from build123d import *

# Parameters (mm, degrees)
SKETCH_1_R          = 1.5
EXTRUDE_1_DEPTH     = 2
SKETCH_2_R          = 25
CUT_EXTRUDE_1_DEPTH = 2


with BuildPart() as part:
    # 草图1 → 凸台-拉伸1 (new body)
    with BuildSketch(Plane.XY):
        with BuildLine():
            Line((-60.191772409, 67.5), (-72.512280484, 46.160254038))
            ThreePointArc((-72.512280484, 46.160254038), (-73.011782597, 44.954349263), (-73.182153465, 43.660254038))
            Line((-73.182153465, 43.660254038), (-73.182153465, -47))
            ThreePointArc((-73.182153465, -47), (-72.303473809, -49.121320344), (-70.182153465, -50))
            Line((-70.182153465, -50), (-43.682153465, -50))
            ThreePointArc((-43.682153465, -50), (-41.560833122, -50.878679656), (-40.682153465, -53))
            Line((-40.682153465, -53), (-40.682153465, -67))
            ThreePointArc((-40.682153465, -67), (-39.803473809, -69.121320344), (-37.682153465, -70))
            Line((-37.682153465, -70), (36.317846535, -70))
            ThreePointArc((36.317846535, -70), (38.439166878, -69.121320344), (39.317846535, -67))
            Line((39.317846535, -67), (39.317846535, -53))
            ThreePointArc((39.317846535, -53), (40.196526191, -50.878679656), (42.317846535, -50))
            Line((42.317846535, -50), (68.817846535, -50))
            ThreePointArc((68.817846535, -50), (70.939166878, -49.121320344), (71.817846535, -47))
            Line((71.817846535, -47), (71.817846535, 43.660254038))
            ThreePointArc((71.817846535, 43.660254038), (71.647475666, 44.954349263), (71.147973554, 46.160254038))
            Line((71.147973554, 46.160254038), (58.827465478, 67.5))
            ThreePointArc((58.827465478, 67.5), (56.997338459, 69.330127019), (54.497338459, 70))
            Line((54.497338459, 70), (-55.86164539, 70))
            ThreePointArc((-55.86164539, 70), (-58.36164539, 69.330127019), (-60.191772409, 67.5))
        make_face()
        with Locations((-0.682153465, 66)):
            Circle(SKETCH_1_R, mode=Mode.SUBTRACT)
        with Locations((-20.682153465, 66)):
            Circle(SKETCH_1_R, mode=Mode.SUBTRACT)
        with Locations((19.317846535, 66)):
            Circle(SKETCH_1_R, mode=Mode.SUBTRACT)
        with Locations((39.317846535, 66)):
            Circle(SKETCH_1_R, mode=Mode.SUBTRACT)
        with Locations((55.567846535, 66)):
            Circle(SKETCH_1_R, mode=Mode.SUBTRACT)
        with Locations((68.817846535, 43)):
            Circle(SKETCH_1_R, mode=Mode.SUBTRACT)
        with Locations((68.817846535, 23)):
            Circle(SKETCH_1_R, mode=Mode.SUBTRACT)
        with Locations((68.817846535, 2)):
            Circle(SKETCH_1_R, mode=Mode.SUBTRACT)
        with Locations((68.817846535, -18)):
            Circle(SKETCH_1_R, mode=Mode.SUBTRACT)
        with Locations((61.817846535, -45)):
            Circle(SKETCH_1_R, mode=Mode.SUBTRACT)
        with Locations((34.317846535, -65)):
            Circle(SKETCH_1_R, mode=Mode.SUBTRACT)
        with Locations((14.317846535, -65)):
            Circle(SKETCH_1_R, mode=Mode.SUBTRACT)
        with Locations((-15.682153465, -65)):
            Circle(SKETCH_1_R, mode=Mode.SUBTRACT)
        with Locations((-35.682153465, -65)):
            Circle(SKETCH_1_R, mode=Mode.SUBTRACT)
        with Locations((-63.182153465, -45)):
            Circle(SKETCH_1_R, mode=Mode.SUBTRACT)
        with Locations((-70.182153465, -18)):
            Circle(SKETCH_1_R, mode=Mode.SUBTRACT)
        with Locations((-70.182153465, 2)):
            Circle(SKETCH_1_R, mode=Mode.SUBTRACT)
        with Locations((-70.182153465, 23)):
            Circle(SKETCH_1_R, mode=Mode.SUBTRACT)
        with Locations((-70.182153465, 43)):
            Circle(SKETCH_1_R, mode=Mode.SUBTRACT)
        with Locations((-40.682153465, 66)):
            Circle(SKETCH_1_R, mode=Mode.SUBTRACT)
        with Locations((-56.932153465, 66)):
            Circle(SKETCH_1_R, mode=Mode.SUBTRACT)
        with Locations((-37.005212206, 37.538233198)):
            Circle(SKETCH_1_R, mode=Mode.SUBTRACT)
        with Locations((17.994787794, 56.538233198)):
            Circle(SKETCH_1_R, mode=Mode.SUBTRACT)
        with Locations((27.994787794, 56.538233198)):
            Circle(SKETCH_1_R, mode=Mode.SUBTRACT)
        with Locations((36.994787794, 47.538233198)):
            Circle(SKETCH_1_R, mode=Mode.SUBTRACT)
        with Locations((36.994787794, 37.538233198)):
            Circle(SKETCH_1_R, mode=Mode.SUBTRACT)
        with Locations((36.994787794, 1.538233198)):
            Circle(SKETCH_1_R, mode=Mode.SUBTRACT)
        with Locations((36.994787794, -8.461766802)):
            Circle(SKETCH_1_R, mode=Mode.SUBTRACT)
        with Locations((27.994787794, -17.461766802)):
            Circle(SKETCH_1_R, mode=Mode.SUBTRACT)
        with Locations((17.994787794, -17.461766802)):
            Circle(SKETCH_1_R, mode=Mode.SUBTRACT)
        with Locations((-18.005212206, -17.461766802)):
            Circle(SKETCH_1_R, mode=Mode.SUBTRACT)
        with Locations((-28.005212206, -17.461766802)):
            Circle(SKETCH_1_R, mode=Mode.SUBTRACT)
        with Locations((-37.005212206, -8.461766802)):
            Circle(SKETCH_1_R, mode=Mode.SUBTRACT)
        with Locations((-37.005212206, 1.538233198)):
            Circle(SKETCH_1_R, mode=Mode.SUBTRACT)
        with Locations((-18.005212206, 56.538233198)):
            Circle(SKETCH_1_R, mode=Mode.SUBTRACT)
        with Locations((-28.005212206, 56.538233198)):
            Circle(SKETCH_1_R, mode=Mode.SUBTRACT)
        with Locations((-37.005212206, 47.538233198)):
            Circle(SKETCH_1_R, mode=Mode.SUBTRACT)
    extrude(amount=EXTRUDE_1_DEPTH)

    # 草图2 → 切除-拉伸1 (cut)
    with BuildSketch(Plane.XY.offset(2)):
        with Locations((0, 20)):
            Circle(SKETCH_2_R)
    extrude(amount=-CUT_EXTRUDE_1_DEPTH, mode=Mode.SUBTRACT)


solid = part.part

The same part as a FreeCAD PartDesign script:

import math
import FreeCAD as App
import Part
import Sketcher
Q = App.Units.Quantity

doc = App.newDocument("Part")
params = doc.addObject("Spreadsheet::Sheet", "Params")
for row, (alias, value) in enumerate([
    ("sketch1_diameter", "3 mm"),
    ("sketch1_radius", "5 mm"),
    ("sketch1_radius2", "3 mm"),
    ("sketch1_width", "74 mm"),
    ("sketch1_height", "14 mm"),
    ("pad1_length", "2 mm"),
    ("sketch2_diameter", "50 mm"),
    ("pocket1_length", "2 mm"),
], start=1):
    params.set(f"A{row}", alias)
    params.set(f"B{row}", "=" + value)
    params.setAlias(f"B{row}", alias)

body = doc.addObject("PartDesign::Body", "Body")

sketch1 = body.newObject("Sketcher::SketchObject", "Sketch")
sketch1.AttachmentSupport = (doc.getObject("XY_Plane"), [""])
sketch1.MapMode = "FlatFace"
sketch1.addGeometry(Part.LineSegment(App.Vector(-60.191772, 67.5, 0), App.Vector(-72.51228, 46.160254, 0)), False)
sketch1.addGeometry(Part.ArcOfCircle(Part.Circle(App.Vector(-68.182153, 43.660254, 0), App.Vector(0, 0, 1), 5), math.radians(150), math.radians(180)), False)
sketch1.addGeometry(Part.LineSegment(App.Vector(-73.182153, 43.660254, 0), App.Vector(-73.182153, -47, 0)), False)
sketch1.addGeometry(Part.ArcOfCircle(Part.Circle(App.Vector(-70.182153, -47, 0), App.Vector(0, 0, 1), 3), math.radians(180), math.radians(270)), False)
sketch1.addGeometry(Part.LineSegment(App.Vector(-70.182153, -50, 0), App.Vector(-43.682153, -50, 0)), False)
sketch1.addGeometry(Part.ArcOfCircle(Part.Circle(App.Vector(-43.682153, -53, 0), App.Vector(0, 0, 1), 3), math.radians(0), math.radians(90)), False)
sketch1.addGeometry(Part.LineSegment(App.Vector(-40.682153, -53, 0), App.Vector(-40.682153, -67, 0)), False)
sketch1.addGeometry(Part.ArcOfCircle(Part.Circle(App.Vector(-37.682153, -67, 0), App.Vector(0, 0, 1), 3), math.radians(180), math.radians(270)), False)
sketch1.addGeometry(Part.LineSegment(App.Vector(-37.682153, -70, 0), App.Vector(36.317847, -70, 0)), False)
sketch1.addGeometry(Part.ArcOfCircle(Part.Circle(App.Vector(36.317847, -67, 0), App.Vector(0, 0, 1), 3), math.radians(-90), math.radians(0)), False)
sketch1.addGeometry(Part.LineSegment(App.Vector(39.317847, -67, 0), App.Vector(39.317847, -53, 0)), False)
sketch1.addGeometry(Part.ArcOfCircle(Part.Circle(App.Vector(42.317847, -53, 0), App.Vector(0, 0, 1), 3), math.radians(90), math.radians(180)), False)
sketch1.addGeometry(Part.LineSegment(App.Vector(42.317847, -50, 0), App.Vector(68.817847, -50, 0)), False)
sketch1.addGeometry(Part.ArcOfCircle(Part.Circle(App.Vector(68.817847, -47, 0), App.Vector(0, 0, 1), 3), math.radians(-90), math.radians(0)), False)
sketch1.addGeometry(Part.LineSegment(App.Vector(71.817847, -47, 0), App.Vector(71.817847, 43.660254, 0)), False)
sketch1.addGeometry(Part.ArcOfCircle(Part.Circle(App.Vector(66.817847, 43.660254, 0), App.Vector(0, 0, 1), 5), math.radians(0), math.radians(30)), False)
sketch1.addGeometry(Part.LineSegment(App.Vector(71.147974, 46.160254, 0), App.Vector(58.827465, 67.5, 0)), False)
sketch1.addGeometry(Part.ArcOfCircle(Part.Circle(App.Vector(54.497338, 65, 0), App.Vector(0, 0, 1), 5), math.radians(30), math.radians(90)), False)
sketch1.addGeometry(Part.LineSegment(App.Vector(54.497338, 70, 0), App.Vector(-55.861645, 70, 0)), False)
sketch1.addGeometry(Part.ArcOfCircle(Part.Circle(App.Vector(-55.861645, 65, 0), App.Vector(0, 0, 1), 5), math.radians(90), math.radians(150)), False)
sketch1.addGeometry(Part.Circle(App.Vector(-63.182153, -45, 0), App.Vector(0, 0, 1), 1.5), False)
sketch1.addGeometry(Part.Circle(App.Vector(-35.682153, -65, 0), App.Vector(0, 0, 1), 1.5), False)
sketch1.addGeometry(Part.Circle(App.Vector(-15.682153, -65, 0), App.Vector(0, 0, 1), 1.5), False)
sketch1.addGeometry(Part.Circle(App.Vector(-70.182153, -18, 0), App.Vector(0, 0, 1), 1.5), False)
sketch1.addGeometry(Part.Circle(App.Vector(-37.005212, -8.461767, 0), App.Vector(0, 0, 1), 1.5), False)
sketch1.addGeometry(Part.Circle(App.Vector(-28.005212, -17.461767, 0), App.Vector(0, 0, 1), 1.5), False)
sketch1.addGeometry(Part.Circle(App.Vector(-18.005212, -17.461767, 0), App.Vector(0, 0, 1), 1.5), False)
sketch1.addGeometry(Part.Circle(App.Vector(14.317847, -65, 0), App.Vector(0, 0, 1), 1.5), False)
sketch1.addGeometry(Part.Circle(App.Vector(34.317847, -65, 0), App.Vector(0, 0, 1), 1.5), False)
sketch1.addGeometry(Part.Circle(App.Vector(61.817847, -45, 0), App.Vector(0, 0, 1), 1.5), False)
sketch1.addGeometry(Part.Circle(App.Vector(17.994788, -17.461767, 0), App.Vector(0, 0, 1), 1.5), False)
sketch1.addGeometry(Part.Circle(App.Vector(27.994788, -17.461767, 0), App.Vector(0, 0, 1), 1.5), False)
sketch1.addGeometry(Part.Circle(App.Vector(68.817847, -18, 0), App.Vector(0, 0, 1), 1.5), False)
sketch1.addGeometry(Part.Circle(App.Vector(36.994788, -8.461767, 0), App.Vector(0, 0, 1), 1.5), False)
sketch1.addGeometry(Part.Circle(App.Vector(-70.182153, 2, 0), App.Vector(0, 0, 1), 1.5), False)
sketch1.addGeometry(Part.Circle(App.Vector(-37.005212, 1.538233, 0), App.Vector(0, 0, 1), 1.5), False)
sketch1.addGeometry(Part.Circle(App.Vector(-70.182153, 23, 0), App.Vector(0, 0, 1), 1.5), False)
sketch1.addGeometry(Part.Circle(App.Vector(-70.182153, 43, 0), App.Vector(0, 0, 1), 1.5), False)
sketch1.addGeometry(Part.Circle(App.Vector(-37.005212, 37.538233, 0), App.Vector(0, 0, 1), 1.5), False)
sketch1.addGeometry(Part.Circle(App.Vector(-37.005212, 47.538233, 0), App.Vector(0, 0, 1), 1.5), False)
sketch1.addGeometry(Part.Circle(App.Vector(-56.932153, 66, 0), App.Vector(0, 0, 1), 1.5), False)
sketch1.addGeometry(Part.Circle(App.Vector(-40.682153, 66, 0), App.Vector(0, 0, 1), 1.5), False)
sketch1.addGeometry(Part.Circle(App.Vector(-28.005212, 56.538233, 0), App.Vector(0, 0, 1), 1.5), False)
sketch1.addGeometry(Part.Circle(App.Vector(-20.682153, 66, 0), App.Vector(0, 0, 1), 1.5), False)
sketch1.addGeometry(Part.Circle(App.Vector(-18.005212, 56.538233, 0), App.Vector(0, 0, 1), 1.5), False)
sketch1.addGeometry(Part.Circle(App.Vector(-0.682153, 66, 0), App.Vector(0, 0, 1), 1.5), False)
sketch1.addGeometry(Part.Circle(App.Vector(36.994788, 1.538233, 0), App.Vector(0, 0, 1), 1.5), False)
sketch1.addGeometry(Part.Circle(App.Vector(68.817847, 2, 0), App.Vector(0, 0, 1), 1.5), False)
sketch1.addGeometry(Part.Circle(App.Vector(68.817847, 23, 0), App.Vector(0, 0, 1), 1.5), False)
sketch1.addGeometry(Part.Circle(App.Vector(17.994788, 56.538233, 0), App.Vector(0, 0, 1), 1.5), False)
sketch1.addGeometry(Part.Circle(App.Vector(27.994788, 56.538233, 0), App.Vector(0, 0, 1), 1.5), False)
sketch1.addGeometry(Part.Circle(App.Vector(19.317847, 66, 0), App.Vector(0, 0, 1), 1.5), False)
sketch1.addGeometry(Part.Circle(App.Vector(36.994788, 37.538233, 0), App.Vector(0, 0, 1), 1.5), False)
sketch1.addGeometry(Part.Circle(App.Vector(36.994788, 47.538233, 0), App.Vector(0, 0, 1), 1.5), False)
sketch1.addGeometry(Part.Circle(App.Vector(68.817847, 43, 0), App.Vector(0, 0, 1), 1.5), False)
sketch1.addGeometry(Part.Circle(App.Vector(39.317847, 66, 0), App.Vector(0, 0, 1), 1.5), False)
sketch1.addGeometry(Part.Circle(App.Vector(55.567847, 66, 0), App.Vector(0, 0, 1), 1.5), False)
sketch1.addConstraint(Sketcher.Constraint("Tangent", 0, 2, 1, 1))
sketch1.addConstraint(Sketcher.Constraint("Tangent", 1, 2, 2, 1))
sketch1.addConstraint(Sketcher.Constraint("Tangent", 2, 2, 3, 1))
sketch1.addConstraint(Sketcher.Constraint("Tangent", 3, 2, 4, 1))
sketch1.addConstraint(Sketcher.Constraint("Tangent", 4, 2, 5, 2))
sketch1.addConstraint(Sketcher.Constraint("Tangent", 5, 1, 6, 1))
sketch1.addConstraint(Sketcher.Constraint("Tangent", 6, 2, 7, 1))
sketch1.addConstraint(Sketcher.Constraint("Tangent", 7, 2, 8, 1))
sketch1.addConstraint(Sketcher.Constraint("Tangent", 8, 2, 9, 1))
sketch1.addConstraint(Sketcher.Constraint("Tangent", 9, 2, 10, 1))
sketch1.addConstraint(Sketcher.Constraint("Tangent", 10, 2, 11, 2))
sketch1.addConstraint(Sketcher.Constraint("Tangent", 11, 1, 12, 1))
sketch1.addConstraint(Sketcher.Constraint("Tangent", 12, 2, 13, 1))
sketch1.addConstraint(Sketcher.Constraint("Tangent", 13, 2, 14, 1))
sketch1.addConstraint(Sketcher.Constraint("Tangent", 14, 2, 15, 1))
sketch1.addConstraint(Sketcher.Constraint("Tangent", 15, 2, 16, 1))
sketch1.addConstraint(Sketcher.Constraint("Tangent", 16, 2, 17, 1))
sketch1.addConstraint(Sketcher.Constraint("Tangent", 17, 2, 18, 1))
sketch1.addConstraint(Sketcher.Constraint("Tangent", 18, 2, 19, 1))
sketch1.addConstraint(Sketcher.Constraint("Tangent", 19, 2, 0, 1))
sketch1.addConstraint(Sketcher.Constraint("Vertical", 2))
sketch1.addConstraint(Sketcher.Constraint("Horizontal", 4))
sketch1.addConstraint(Sketcher.Constraint("Vertical", 6))
sketch1.addConstraint(Sketcher.Constraint("Horizontal", 8))
sketch1.addConstraint(Sketcher.Constraint("Vertical", 10))
sketch1.addConstraint(Sketcher.Constraint("Horizontal", 12))
sketch1.addConstraint(Sketcher.Constraint("Vertical", 14))
sketch1.addConstraint(Sketcher.Constraint("Horizontal", 18))
sketch1.addConstraint(Sketcher.Constraint("Equal", 3, 5))
sketch1.addConstraint(Sketcher.Constraint("Equal", 5, 7))
sketch1.addConstraint(Sketcher.Constraint("Equal", 7, 9))
sketch1.addConstraint(Sketcher.Constraint("Equal", 9, 11))
sketch1.addConstraint(Sketcher.Constraint("Equal", 11, 13))
sketch1.addConstraint(Sketcher.Constraint("Equal", 1, 15))
sketch1.addConstraint(Sketcher.Constraint("Equal", 15, 17))
sketch1.addConstraint(Sketcher.Constraint("Equal", 17, 19))
sketch1.addConstraint(Sketcher.Constraint("Equal", 20, 21))
sketch1.addConstraint(Sketcher.Constraint("Equal", 21, 22))
sketch1.addConstraint(Sketcher.Constraint("Equal", 22, 23))
sketch1.addConstraint(Sketcher.Constraint("Equal", 23, 24))
sketch1.addConstraint(Sketcher.Constraint("Equal", 24, 25))
sketch1.addConstraint(Sketcher.Constraint("Equal", 25, 26))
sketch1.addConstraint(Sketcher.Constraint("Equal", 26, 27))
sketch1.addConstraint(Sketcher.Constraint("Equal", 27, 28))
sketch1.addConstraint(Sketcher.Constraint("Equal", 28, 29))
sketch1.addConstraint(Sketcher.Constraint("Equal", 29, 30))
sketch1.addConstraint(Sketcher.Constraint("Equal", 30, 31))
sketch1.addConstraint(Sketcher.Constraint("Equal", 31, 32))
sketch1.addConstraint(Sketcher.Constraint("Equal", 32, 33))
sketch1.addConstraint(Sketcher.Constraint("Equal", 33, 34))
sketch1.addConstraint(Sketcher.Constraint("Equal", 34, 35))
sketch1.addConstraint(Sketcher.Constraint("Equal", 35, 36))
sketch1.addConstraint(Sketcher.Constraint("Equal", 36, 37))
sketch1.addConstraint(Sketcher.Constraint("Equal", 37, 38))
sketch1.addConstraint(Sketcher.Constraint("Equal", 38, 39))
sketch1.addConstraint(Sketcher.Constraint("Equal", 39, 40))
sketch1.addConstraint(Sketcher.Constraint("Equal", 40, 41))
sketch1.addConstraint(Sketcher.Constraint("Equal", 41, 42))
sketch1.addConstraint(Sketcher.Constraint("Equal", 42, 43))
sketch1.addConstraint(Sketcher.Constraint("Equal", 43, 44))
sketch1.addConstraint(Sketcher.Constraint("Equal", 44, 45))
sketch1.addConstraint(Sketcher.Constraint("Equal", 45, 46))
sketch1.addConstraint(Sketcher.Constraint("Equal", 46, 47))
sketch1.addConstraint(Sketcher.Constraint("Equal", 47, 48))
sketch1.addConstraint(Sketcher.Constraint("Equal", 48, 49))
sketch1.addConstraint(Sketcher.Constraint("Equal", 49, 50))
sketch1.addConstraint(Sketcher.Constraint("Equal", 50, 51))
sketch1.addConstraint(Sketcher.Constraint("Equal", 51, 52))
sketch1.addConstraint(Sketcher.Constraint("Equal", 52, 53))
sketch1.addConstraint(Sketcher.Constraint("Equal", 53, 54))
sketch1.addConstraint(Sketcher.Constraint("Equal", 54, 55))
sketch1.addConstraint(Sketcher.Constraint("Equal", 55, 56))
sketch1.addConstraint(Sketcher.Constraint("Horizontal", 5, 3, 11, 3))
sketch1.addConstraint(Sketcher.Constraint("Horizontal", 1, 3, 15, 3))
sketch1.addConstraint(Sketcher.Constraint("Horizontal", 21, 3, 22, 3))
sketch1.addConstraint(Sketcher.Constraint("Horizontal", 25, 3, 26, 3))
sketch1.addConstraint(Sketcher.Constraint("Horizontal", 22, 3, 27, 3))
sketch1.addConstraint(Sketcher.Constraint("Horizontal", 27, 3, 28, 3))
sketch1.addConstraint(Sketcher.Constraint("Horizontal", 20, 3, 29, 3))
sketch1.addConstraint(Sketcher.Constraint("Horizontal", 26, 3, 30, 3))
sketch1.addConstraint(Sketcher.Constraint("Horizontal", 30, 3, 31, 3))
sketch1.addConstraint(Sketcher.Constraint("Horizontal", 23, 3, 32, 3))
sketch1.addConstraint(Sketcher.Constraint("Horizontal", 24, 3, 33, 3))
sketch1.addConstraint(Sketcher.Constraint("Horizontal", 40, 3, 41, 3))
sketch1.addConstraint(Sketcher.Constraint("Horizontal", 41, 3, 43, 3))
sketch1.addConstraint(Sketcher.Constraint("Horizontal", 42, 3, 44, 3))
sketch1.addConstraint(Sketcher.Constraint("Horizontal", 43, 3, 45, 3))
sketch1.addConstraint(Sketcher.Constraint("Horizontal", 35, 3, 46, 3))
sketch1.addConstraint(Sketcher.Constraint("Horizontal", 34, 3, 47, 3))
sketch1.addConstraint(Sketcher.Constraint("Horizontal", 36, 3, 48, 3))
sketch1.addConstraint(Sketcher.Constraint("Horizontal", 44, 3, 49, 3))
sketch1.addConstraint(Sketcher.Constraint("Horizontal", 49, 3, 50, 3))
sketch1.addConstraint(Sketcher.Constraint("Horizontal", 45, 3, 51, 3))
sketch1.addConstraint(Sketcher.Constraint("Horizontal", 38, 3, 52, 3))
sketch1.addConstraint(Sketcher.Constraint("Horizontal", 39, 3, 53, 3))
sketch1.addConstraint(Sketcher.Constraint("Horizontal", 37, 3, 54, 3))
sketch1.addConstraint(Sketcher.Constraint("Horizontal", 51, 3, 55, 3))
sketch1.addConstraint(Sketcher.Constraint("Horizontal", 55, 3, 56, 3))
sketch1.addConstraint(Sketcher.Constraint("Horizontal", 0, 2, 15, 2))
sketch1.addConstraint(Sketcher.Constraint("Vertical", 3, 3, 23, 3))
sketch1.addConstraint(Sketcher.Constraint("Vertical", 13, 3, 32, 3))
sketch1.addConstraint(Sketcher.Constraint("Vertical", 23, 3, 34, 3))
sketch1.addConstraint(Sketcher.Constraint("Vertical", 24, 3, 35, 3))
sketch1.addConstraint(Sketcher.Constraint("Vertical", 34, 3, 36, 3))
sketch1.addConstraint(Sketcher.Constraint("Vertical", 36, 3, 37, 3))
sketch1.addConstraint(Sketcher.Constraint("Vertical", 35, 3, 38, 3))
sketch1.addConstraint(Sketcher.Constraint("Vertical", 38, 3, 39, 3))
sketch1.addConstraint(Sketcher.Constraint("Vertical", 25, 3, 42, 3))
sketch1.addConstraint(Sketcher.Constraint("Vertical", 26, 3, 44, 3))
sketch1.addConstraint(Sketcher.Constraint("Vertical", 33, 3, 46, 3))
sketch1.addConstraint(Sketcher.Constraint("Vertical", 32, 3, 47, 3))
sketch1.addConstraint(Sketcher.Constraint("Vertical", 47, 3, 48, 3))
sketch1.addConstraint(Sketcher.Constraint("Vertical", 30, 3, 49, 3))
sketch1.addConstraint(Sketcher.Constraint("Vertical", 31, 3, 50, 3))
sketch1.addConstraint(Sketcher.Constraint("Vertical", 46, 3, 52, 3))
sketch1.addConstraint(Sketcher.Constraint("Vertical", 52, 3, 53, 3))
sketch1.addConstraint(Sketcher.Constraint("Vertical", 48, 3, 54, 3))
sketch1.addConstraint(Sketcher.Constraint("Vertical", 41, 3, 5, 1))
sketch1.addConstraint(Sketcher.Constraint("Vertical", 55, 3, 9, 2))
sketch1.addConstraint(Sketcher.Constraint("Equal", 4, 12))
sketch1.addConstraint(Sketcher.Constraint("Diameter", 20, Q("3 mm")))
sketch1.addConstraint(Sketcher.Constraint("Radius", 1, Q("5 mm")))
sketch1.addConstraint(Sketcher.Constraint("Radius", 3, Q("3 mm")))
sketch1.addConstraint(Sketcher.Constraint("DistanceX", 8, 1, 8, 2, Q("74 mm")))
sketch1.addConstraint(Sketcher.Constraint("DistanceY", 6, 2, 6, 1, Q("14 mm")))
sketch1.addConstraint(Sketcher.Constraint("Angle", 0, Q("-120 deg")))
sketch1.addConstraint(Sketcher.Constraint("DistanceX", 4, 1, 4, 2, Q("26.5 mm")))
sketch1.addConstraint(Sketcher.Constraint("DistanceY", 3, 3, -1, 1, Q("47 mm")))
sketch1.addConstraint(Sketcher.Constraint("DistanceY", -1, 1, 17, 3, Q("65 mm")))
sketch1.addConstraint(Sketcher.Constraint("DistanceY", 20, 3, -1, 1, Q("45 mm")))
sketch1.addConstraint(Sketcher.Constraint("DistanceY", 21, 3, -1, 1, Q("65 mm")))
sketch1.addConstraint(Sketcher.Constraint("DistanceY", 23, 3, -1, 1, Q("18 mm")))
sketch1.addConstraint(Sketcher.Constraint("DistanceY", -1, 1, 34, 3, Q("2 mm")))
sketch1.addConstraint(Sketcher.Constraint("DistanceY", -1, 1, 36, 3, Q("23 mm")))
sketch1.addConstraint(Sketcher.Constraint("DistanceY", -1, 1, 37, 3, Q("43 mm")))
sketch1.addConstraint(Sketcher.Constraint("DistanceY", -1, 1, 40, 3, Q("66 mm")))
sketch1.addConstraint(Sketcher.Constraint("DistanceX", 18, 2, 18, 1, Q("110.358984 mm")))
sketch1.addConstraint(Sketcher.Constraint("DistanceX", -1, 1, 17, 3, Q("54.497338 mm")))
sketch1.addConstraint(Sketcher.Constraint("DistanceX", 20, 3, -1, 1, Q("63.182153 mm")))
sketch1.addConstraint(Sketcher.Constraint("DistanceX", 21, 3, -1, 1, Q("35.682153 mm")))
sketch1.addConstraint(Sketcher.Constraint("DistanceX", 22, 3, -1, 1, Q("15.682153 mm")))
sketch1.addConstraint(Sketcher.Constraint("DistanceX", 24, 3, -1, 1, Q("37.005212 mm")))
sketch1.addConstraint(Sketcher.Constraint("DistanceY", 24, 3, -1, 1, Q("8.461767 mm")))
sketch1.addConstraint(Sketcher.Constraint("DistanceX", 25, 3, -1, 1, Q("28.005212 mm")))
sketch1.addConstraint(Sketcher.Constraint("DistanceY", 25, 3, -1, 1, Q("17.461767 mm")))
sketch1.addConstraint(Sketcher.Constraint("DistanceX", 26, 3, -1, 1, Q("18.005212 mm")))
sketch1.addConstraint(Sketcher.Constraint("DistanceX", -1, 1, 27, 3, Q("14.317847 mm")))
sketch1.addConstraint(Sketcher.Constraint("DistanceX", -1, 1, 28, 3, Q("34.317847 mm")))
sketch1.addConstraint(Sketcher.Constraint("DistanceX", -1, 1, 29, 3, Q("61.817847 mm")))
sketch1.addConstraint(Sketcher.Constraint("DistanceX", -1, 1, 30, 3, Q("17.994788 mm")))
sketch1.addConstraint(Sketcher.Constraint("DistanceX", -1, 1, 31, 3, Q("27.994788 mm")))
sketch1.addConstraint(Sketcher.Constraint("DistanceX", -1, 1, 33, 3, Q("36.994788 mm")))
sketch1.addConstraint(Sketcher.Constraint("DistanceY", -1, 1, 35, 3, Q("1.538233 mm")))
sketch1.addConstraint(Sketcher.Constraint("DistanceY", -1, 1, 38, 3, Q("37.538233 mm")))
sketch1.addConstraint(Sketcher.Constraint("DistanceY", -1, 1, 39, 3, Q("47.538233 mm")))
sketch1.addConstraint(Sketcher.Constraint("DistanceX", 40, 3, -1, 1, Q("56.932153 mm")))
sketch1.addConstraint(Sketcher.Constraint("DistanceY", -1, 1, 42, 3, Q("56.538233 mm")))
sketch1.addConstraint(Sketcher.Constraint("DistanceX", 43, 3, -1, 1, Q("20.682153 mm")))
sketch1.addConstraint(Sketcher.Constraint("DistanceX", 45, 3, -1, 1, Q("0.682153 mm")))
sketch1.addConstraint(Sketcher.Constraint("DistanceX", -1, 1, 51, 3, Q("19.317847 mm")))
sketch1.addConstraint(Sketcher.Constraint("DistanceX", -1, 1, 56, 3, Q("55.567847 mm")))
sketch1.setExpression("Constraints[120]", "Params.sketch1_diameter")
sketch1.setExpression("Constraints[121]", "Params.sketch1_radius")
sketch1.setExpression("Constraints[122]", "Params.sketch1_radius2")
sketch1.setExpression("Constraints[123]", "Params.sketch1_width")
sketch1.setExpression("Constraints[124]", "Params.sketch1_height")
pad1 = body.newObject("PartDesign::Pad", "Pad")
pad1.Profile = sketch1
pad1.setExpression("Length", "Params.pad1_length")

sketch2 = body.newObject("Sketcher::SketchObject", "Sketch001")
sketch2.AttachmentSupport = (doc.getObject("XY_Plane"), [""])
sketch2.MapMode = "FlatFace"
sketch2.AttachmentOffset = App.Placement(App.Vector(0, 0, 2), App.Rotation())
sketch2.addGeometry(Part.Circle(App.Vector(0, 20, 0), App.Vector(0, 0, 1), 25), False)
sketch2.addConstraint(Sketcher.Constraint("PointOnObject", 0, 3, -2))
sketch2.addConstraint(Sketcher.Constraint("Diameter", 0, Q("50 mm")))
sketch2.addConstraint(Sketcher.Constraint("DistanceY", -1, 1, 0, 3, Q("20 mm")))
sketch2.setExpression("Constraints[1]", "Params.sketch2_diameter")
pocket1 = body.newObject("PartDesign::Pocket", "Pocket")
pocket1.Profile = sketch2
pocket1.setExpression("Length", "Params.pocket1_length")

doc.recompute()
